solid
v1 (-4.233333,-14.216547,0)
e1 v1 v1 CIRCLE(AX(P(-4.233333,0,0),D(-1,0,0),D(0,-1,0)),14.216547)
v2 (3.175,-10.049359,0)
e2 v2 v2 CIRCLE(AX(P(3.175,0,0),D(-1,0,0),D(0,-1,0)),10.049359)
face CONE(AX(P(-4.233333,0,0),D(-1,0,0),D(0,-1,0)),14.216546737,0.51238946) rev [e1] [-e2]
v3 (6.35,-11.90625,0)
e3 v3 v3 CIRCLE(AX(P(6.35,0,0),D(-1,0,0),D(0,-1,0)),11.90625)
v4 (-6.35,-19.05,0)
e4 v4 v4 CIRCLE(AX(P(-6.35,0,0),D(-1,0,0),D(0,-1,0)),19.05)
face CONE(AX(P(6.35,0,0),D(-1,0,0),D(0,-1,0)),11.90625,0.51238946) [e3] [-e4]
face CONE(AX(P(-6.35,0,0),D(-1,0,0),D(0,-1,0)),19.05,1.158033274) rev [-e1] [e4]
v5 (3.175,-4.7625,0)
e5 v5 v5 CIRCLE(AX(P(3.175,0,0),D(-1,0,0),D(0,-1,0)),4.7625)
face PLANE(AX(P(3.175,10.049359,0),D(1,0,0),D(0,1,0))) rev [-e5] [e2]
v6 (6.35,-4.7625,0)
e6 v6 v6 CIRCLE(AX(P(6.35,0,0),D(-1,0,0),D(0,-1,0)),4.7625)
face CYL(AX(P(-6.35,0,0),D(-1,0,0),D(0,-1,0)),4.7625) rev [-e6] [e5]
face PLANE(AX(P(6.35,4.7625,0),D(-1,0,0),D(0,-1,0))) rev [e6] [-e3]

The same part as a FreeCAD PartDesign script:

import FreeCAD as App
import Part
import Sketcher

V = App.Vector
Q = App.Units.Quantity


def add_polygon(sketch, points):
    """Adds a closed chain of lines whose ends are joined by coincident constraints."""
    first, n = sketch.GeometryCount, len(points)
    for a, b in zip(points, points[1:] + points[:1]):
        sketch.addGeometry(Part.LineSegment(App.Vector(*a, 0), App.Vector(*b, 0)), False)
    for i in range(n):
        sketch.addConstraint(Sketcher.Constraint("Coincident", first + i, 2, first + (i + 1) % n, 1))

doc = App.newDocument("Part")
params = doc.addObject("Spreadsheet::Sheet", "Params")
for row, (alias, value) in enumerate([
    ("sketch1_width", "0.125 in"),
    ("sketch1_height", "0.28125 in"),
    ("revolution_angle", "360 deg"),
], start=1):
    params.set(f"A{row}", alias)
    params.set(f"B{row}", "=" + value)
    params.setAlias(f"B{row}", alias)

body = doc.addObject("PartDesign::Body", "Body")

# Sketch on XY plane
sketch1 = body.newObject("Sketcher::SketchObject", "Sketch")
sketch1.AttachmentSupport = (doc.getObject("XY_Plane"), [""])
sketch1.MapMode = "FlatFace"
add_polygon(sketch1, [(3.2, 4.8), (6.3, 4.8), (6.3, 11.9), (-6.3, 19.1), (-4.2, 14.2), (3.2, 10)])  # lines 0-5
sketch1.addConstraint(Sketcher.Constraint("Horizontal", 0))
sketch1.addConstraint(Sketcher.Constraint("Vertical", 1))
sketch1.addConstraint(Sketcher.Constraint("Vertical", 5))
sketch1.addConstraint(Sketcher.Constraint("Parallel", 2, 4))
sketch1.addConstraint(Sketcher.Constraint("DistanceX", 2, 2, 1, 2, Q("0.5 in")))
sketch1.addConstraint(Sketcher.Constraint("DistanceX", 0, 1, 0, 2, Q("0.125 in")))
sketch1.addConstraint(Sketcher.Constraint("DistanceY", 1, 1, 1, 2, Q("0.28125 in")))
sketch1.addConstraint(Sketcher.Constraint("DistanceX", -1, 1, 0, 2, Q("0.25 in")))
sketch1.addConstraint(Sketcher.Constraint("DistanceY", -1, 1, 2, 2, Q("0.75 in")))
sketch1.addConstraint(Sketcher.Constraint("DistanceY", -1, 1, 0, 2, Q("0.1875 in")))
sketch1.addConstraint(Sketcher.Constraint("DistanceY", 5, 2, 5, 1, 5.286859))
sketch1.addConstraint(Sketcher.Constraint("Distance", 3, 5.276604))
sketch1.setExpression("Constraints[11]", "Params.sketch1_width")
sketch1.setExpression("Constraints[12]", "Params.sketch1_height")
revolution = body.newObject("PartDesign::Revolution", "Revolution")
revolution.Profile = sketch1
revolution.ReferenceAxis = (sketch1, ["H_Axis"])
revolution.setExpression("Angle", "Params.revolution_angle")

doc.recompute()
